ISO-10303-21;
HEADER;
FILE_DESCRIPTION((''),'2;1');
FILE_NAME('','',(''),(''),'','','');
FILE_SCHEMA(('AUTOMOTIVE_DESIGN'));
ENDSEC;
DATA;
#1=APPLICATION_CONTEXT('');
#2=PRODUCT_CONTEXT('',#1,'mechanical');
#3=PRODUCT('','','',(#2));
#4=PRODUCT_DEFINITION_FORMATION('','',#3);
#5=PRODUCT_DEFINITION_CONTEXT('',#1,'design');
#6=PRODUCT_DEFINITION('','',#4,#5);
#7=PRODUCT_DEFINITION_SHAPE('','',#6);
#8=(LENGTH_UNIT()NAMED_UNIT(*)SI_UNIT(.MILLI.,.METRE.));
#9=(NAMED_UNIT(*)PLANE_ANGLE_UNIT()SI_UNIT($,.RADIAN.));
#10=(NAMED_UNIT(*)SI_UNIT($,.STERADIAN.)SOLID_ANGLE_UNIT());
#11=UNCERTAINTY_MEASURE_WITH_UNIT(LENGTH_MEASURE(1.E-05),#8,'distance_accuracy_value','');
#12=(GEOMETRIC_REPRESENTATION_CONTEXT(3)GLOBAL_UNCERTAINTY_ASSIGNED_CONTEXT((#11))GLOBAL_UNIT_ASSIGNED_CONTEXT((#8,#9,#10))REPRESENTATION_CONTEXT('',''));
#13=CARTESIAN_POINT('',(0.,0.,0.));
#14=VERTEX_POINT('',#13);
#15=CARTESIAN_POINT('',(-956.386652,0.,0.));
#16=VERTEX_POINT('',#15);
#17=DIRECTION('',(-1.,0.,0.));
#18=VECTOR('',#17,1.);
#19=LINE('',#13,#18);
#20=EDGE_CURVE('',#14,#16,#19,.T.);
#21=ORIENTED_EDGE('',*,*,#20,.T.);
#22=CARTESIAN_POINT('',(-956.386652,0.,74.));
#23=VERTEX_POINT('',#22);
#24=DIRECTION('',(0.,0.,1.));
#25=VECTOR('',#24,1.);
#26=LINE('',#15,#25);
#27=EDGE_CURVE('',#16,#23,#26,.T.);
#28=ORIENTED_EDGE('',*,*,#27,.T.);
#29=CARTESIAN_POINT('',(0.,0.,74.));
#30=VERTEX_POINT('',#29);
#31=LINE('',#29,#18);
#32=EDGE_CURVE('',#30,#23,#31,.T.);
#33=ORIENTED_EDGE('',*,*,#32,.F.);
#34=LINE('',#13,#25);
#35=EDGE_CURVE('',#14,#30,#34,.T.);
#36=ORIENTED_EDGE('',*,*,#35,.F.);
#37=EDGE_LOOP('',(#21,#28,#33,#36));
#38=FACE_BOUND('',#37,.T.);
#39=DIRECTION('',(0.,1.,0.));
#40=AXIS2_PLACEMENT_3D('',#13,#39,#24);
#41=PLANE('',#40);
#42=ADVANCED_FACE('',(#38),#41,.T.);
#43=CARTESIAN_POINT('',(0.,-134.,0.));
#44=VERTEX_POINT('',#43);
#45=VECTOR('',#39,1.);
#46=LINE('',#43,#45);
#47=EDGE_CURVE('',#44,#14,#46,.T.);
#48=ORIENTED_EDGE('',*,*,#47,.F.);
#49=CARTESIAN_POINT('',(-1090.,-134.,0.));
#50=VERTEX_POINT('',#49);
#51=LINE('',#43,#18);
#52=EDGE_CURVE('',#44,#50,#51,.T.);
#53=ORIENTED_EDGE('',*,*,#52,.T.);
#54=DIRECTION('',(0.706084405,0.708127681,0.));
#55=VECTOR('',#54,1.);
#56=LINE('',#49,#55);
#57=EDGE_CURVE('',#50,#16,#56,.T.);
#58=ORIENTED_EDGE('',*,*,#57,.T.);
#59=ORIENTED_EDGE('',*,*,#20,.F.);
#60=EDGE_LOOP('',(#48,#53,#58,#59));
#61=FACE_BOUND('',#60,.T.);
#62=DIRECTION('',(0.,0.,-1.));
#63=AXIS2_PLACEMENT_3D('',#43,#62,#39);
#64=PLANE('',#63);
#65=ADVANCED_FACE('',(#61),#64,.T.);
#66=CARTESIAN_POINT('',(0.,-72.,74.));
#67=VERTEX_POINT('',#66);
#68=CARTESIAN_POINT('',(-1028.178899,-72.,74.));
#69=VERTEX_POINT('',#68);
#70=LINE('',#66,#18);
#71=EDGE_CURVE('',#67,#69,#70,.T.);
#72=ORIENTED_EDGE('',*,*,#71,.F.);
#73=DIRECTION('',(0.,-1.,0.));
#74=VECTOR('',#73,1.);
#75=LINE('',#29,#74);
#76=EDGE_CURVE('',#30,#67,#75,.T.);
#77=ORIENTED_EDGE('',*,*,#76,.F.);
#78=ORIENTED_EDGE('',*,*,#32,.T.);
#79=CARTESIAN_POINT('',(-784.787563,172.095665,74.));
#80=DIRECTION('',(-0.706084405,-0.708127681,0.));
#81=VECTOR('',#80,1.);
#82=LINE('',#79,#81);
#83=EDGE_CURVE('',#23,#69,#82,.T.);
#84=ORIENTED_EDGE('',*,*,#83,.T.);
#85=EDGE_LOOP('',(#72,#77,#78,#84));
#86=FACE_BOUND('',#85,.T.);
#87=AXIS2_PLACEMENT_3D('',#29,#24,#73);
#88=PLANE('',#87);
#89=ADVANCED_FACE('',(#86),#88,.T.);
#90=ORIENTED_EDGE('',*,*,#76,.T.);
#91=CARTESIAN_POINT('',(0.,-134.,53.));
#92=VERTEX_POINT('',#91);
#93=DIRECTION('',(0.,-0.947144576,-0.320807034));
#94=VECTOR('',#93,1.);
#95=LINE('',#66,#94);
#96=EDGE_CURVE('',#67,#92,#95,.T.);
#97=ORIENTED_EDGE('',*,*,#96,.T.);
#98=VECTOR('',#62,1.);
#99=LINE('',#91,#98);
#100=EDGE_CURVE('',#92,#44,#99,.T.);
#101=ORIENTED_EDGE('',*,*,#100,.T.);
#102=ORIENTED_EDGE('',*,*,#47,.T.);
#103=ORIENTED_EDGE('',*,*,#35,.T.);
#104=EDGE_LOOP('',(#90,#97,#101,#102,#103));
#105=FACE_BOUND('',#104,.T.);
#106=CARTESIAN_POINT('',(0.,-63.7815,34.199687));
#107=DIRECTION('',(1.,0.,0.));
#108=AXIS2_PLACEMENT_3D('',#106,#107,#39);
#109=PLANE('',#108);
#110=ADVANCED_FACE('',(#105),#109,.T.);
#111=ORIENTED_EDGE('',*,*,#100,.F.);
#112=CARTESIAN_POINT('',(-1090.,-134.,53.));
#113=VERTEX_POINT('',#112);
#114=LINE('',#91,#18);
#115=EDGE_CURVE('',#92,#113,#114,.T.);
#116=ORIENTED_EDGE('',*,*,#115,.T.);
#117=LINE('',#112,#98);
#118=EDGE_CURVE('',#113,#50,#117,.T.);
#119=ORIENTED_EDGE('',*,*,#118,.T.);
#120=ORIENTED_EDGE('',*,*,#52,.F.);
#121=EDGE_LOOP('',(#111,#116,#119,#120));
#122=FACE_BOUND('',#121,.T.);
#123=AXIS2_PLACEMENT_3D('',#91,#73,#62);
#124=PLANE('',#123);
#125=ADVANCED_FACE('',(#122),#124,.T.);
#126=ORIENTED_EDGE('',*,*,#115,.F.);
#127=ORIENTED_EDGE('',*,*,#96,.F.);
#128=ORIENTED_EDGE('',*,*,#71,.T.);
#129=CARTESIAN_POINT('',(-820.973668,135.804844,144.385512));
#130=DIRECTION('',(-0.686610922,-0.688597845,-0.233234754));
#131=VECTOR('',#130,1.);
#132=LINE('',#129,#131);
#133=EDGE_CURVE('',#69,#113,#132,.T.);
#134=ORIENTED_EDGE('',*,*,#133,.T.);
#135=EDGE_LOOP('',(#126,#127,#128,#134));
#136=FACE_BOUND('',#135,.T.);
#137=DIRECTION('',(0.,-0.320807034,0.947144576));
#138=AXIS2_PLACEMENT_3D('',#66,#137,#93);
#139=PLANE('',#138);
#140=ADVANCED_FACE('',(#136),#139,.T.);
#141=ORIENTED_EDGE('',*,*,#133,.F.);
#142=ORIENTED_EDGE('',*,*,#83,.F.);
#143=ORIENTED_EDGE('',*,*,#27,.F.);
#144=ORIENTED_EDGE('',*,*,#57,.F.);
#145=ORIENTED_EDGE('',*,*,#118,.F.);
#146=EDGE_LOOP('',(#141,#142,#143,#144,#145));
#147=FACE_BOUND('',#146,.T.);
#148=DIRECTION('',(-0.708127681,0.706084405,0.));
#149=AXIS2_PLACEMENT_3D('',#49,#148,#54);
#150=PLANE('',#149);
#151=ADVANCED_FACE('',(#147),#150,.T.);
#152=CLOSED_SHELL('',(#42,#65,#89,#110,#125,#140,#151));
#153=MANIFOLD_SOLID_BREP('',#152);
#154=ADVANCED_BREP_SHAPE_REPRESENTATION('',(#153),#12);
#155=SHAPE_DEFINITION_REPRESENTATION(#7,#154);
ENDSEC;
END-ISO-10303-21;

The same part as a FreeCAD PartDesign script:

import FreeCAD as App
import Part
import Sketcher


def add_polygon(sketch, points):
    """Adds a closed chain of lines whose ends are joined by coincident constraints."""
    first, n = sketch.GeometryCount, len(points)
    for a, b in zip(points, points[1:] + points[:1]):
        sketch.addGeometry(Part.LineSegment(App.Vector(*a, 0), App.Vector(*b, 0)), False)
    for i in range(n):
        sketch.addConstraint(Sketcher.Constraint("Coincident", first + i, 2, first + (i + 1) % n, 1))

doc = App.newDocument("Part")
body = doc.addObject("PartDesign::Body", "Body")

sketch1 = body.newObject("Sketcher::SketchObject", "Sketch")
sketch1.AttachmentSupport = (doc.getObject("YZ_Plane"), [""])
sketch1.MapMode = "FlatFace"
add_polygon(sketch1, [(-134, 0), (0, 0), (0, 74), (-72, 74), (-134, 53)])
sketch1.addConstraint([
    Sketcher.Constraint("Horizontal", 0),
    Sketcher.Constraint("Vertical", 1),
    Sketcher.Constraint("Horizontal", 2),
    Sketcher.Constraint("Vertical", 4),
    Sketcher.Constraint("Coincident", 0, 2, -1, 1),
    Sketcher.Constraint("DistanceX", 0, 1, 0, 2, 134.0),
    Sketcher.Constraint("DistanceX", 2, 2, 2, 1, 72.0),
    Sketcher.Constraint("DistanceY", 1, 1, 1, 2, 74.0),
    Sketcher.Constraint("DistanceY", 4, 2, 4, 1, 53.0),
])
pad1 = body.newObject("PartDesign::Pad", "Pad")
pad1.Profile = sketch1
pad1.Length = 1090
pad1.Reversed = True

sketch2 = body.newObject("Sketcher::SketchObject", "Sketch001")
sketch2.AttachmentSupport = (doc.getObject("XY_Plane"), [""])
sketch2.MapMode = "FlatFace"
add_polygon(sketch2, [(-1195.407476, -137.201768), (-1090, -134), (-956.386652, 0), (-1195.407476, 0)])
sketch2.addConstraint([
    Sketcher.Constraint("Horizontal", 2),
    Sketcher.Constraint("Vertical", 3),
    Sketcher.Constraint("PointOnObject", 1, 2, -1),
    Sketcher.Constraint("DistanceX", 0, 2, -1, 1, 1090.0),
    Sketcher.Constraint("DistanceY", 0, 2, -1, 1, 134.0),
    Sketcher.Constraint("Distance", 0, 105.456092),
    Sketcher.Constraint("Distance", 1, 189.231411),
    Sketcher.Constraint("DistanceX", 2, 2, 2, 1, 239.020824),
])
pocket1 = body.newObject("PartDesign::Pocket", "Pocket")
pocket1.Profile = sketch2
pocket1.Type = "ThroughAll"
pocket1.Reversed = True

doc.recompute()
